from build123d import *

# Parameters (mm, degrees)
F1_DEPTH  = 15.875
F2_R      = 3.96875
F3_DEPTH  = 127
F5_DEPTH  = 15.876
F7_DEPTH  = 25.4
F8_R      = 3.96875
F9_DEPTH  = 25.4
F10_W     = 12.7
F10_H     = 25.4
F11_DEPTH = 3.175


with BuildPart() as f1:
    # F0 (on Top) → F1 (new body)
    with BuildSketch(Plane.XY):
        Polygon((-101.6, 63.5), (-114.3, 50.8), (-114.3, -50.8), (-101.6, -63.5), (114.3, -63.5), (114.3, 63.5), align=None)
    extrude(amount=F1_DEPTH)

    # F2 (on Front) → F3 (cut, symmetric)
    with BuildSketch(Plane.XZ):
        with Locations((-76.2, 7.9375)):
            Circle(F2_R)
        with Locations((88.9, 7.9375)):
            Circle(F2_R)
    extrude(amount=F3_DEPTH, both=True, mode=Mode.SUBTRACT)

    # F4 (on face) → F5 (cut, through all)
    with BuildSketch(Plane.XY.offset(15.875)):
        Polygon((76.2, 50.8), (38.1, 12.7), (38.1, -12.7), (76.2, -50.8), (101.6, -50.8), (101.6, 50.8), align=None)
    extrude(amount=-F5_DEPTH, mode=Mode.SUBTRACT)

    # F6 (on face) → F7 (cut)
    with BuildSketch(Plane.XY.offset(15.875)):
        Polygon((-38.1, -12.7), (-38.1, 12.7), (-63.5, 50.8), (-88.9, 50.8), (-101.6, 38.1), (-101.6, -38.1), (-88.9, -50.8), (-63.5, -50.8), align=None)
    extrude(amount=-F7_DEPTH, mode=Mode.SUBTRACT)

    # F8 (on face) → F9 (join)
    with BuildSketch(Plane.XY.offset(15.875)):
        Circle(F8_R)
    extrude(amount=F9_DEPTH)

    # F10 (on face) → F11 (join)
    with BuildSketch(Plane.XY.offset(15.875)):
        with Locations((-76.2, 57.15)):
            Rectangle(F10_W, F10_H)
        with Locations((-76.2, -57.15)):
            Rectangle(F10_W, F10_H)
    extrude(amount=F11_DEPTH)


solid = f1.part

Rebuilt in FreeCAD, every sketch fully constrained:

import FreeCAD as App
import Part
import Sketcher
Q = App.Units.Quantity

doc = App.newDocument("Part")
params = doc.addObject("Spreadsheet::Sheet", "Params")
for row, (alias, value) in enumerate([
    ("sketch1_height", "4 in"),
    ("sketch1_height2", "5 in"),
    ("sketch1_width", "8.5 in"),
    ("pad1_length", "0.625 in"),
    ("sketch2_diameter", "0.3125 in"),
    ("pocket1_length", "10 in"),
    ("sketch3_width", "1 in"),
    ("sketch3_height", "4 in"),
    ("sketch4_width", "1 in"),
    ("sketch4_height", "3 in"),
    ("pocket3_length", "1 in"),
    ("sketch5_diameter", "0.3125 in"),
    ("pad2_length", "1 in"),
    ("sketch6_height", "1 in"),
    ("sketch6_width", "0.5 in"),
    ("pad3_length", "0.125 in"),
], start=1):
    params.set(f"A{row}", alias)
    params.set(f"B{row}", "=" + value)
    params.setAlias(f"B{row}", alias)

body = doc.addObject("PartDesign::Body", "Body")

# Sketch on XY plane
sketch1 = body.newObject("Sketcher::SketchObject", "Sketch")
sketch1.AttachmentSupport = (doc.getObject("XY_Plane"), [""])
sketch1.MapMode = "FlatFace"
sketch1.addGeometry(Part.LineSegment(App.Vector(-101.6, 63.5, 0), App.Vector(-114.3, 50.8, 0)), False)
sketch1.addGeometry(Part.LineSegment(App.Vector(-114.3, 50.8, 0), App.Vector(-114.3, -50.8, 0)), False)
sketch1.addGeometry(Part.LineSegment(App.Vector(-114.3, -50.8, 0), App.Vector(-101.6, -63.5, 0)), False)
sketch1.addGeometry(Part.LineSegment(App.Vector(-101.6, -63.5, 0), App.Vector(114.3, -63.5, 0)), False)
sketch1.addGeometry(Part.LineSegment(App.Vector(114.3, -63.5, 0), App.Vector(114.3, 63.5, 0)), False)
sketch1.addGeometry(Part.LineSegment(App.Vector(114.3, 63.5, 0), App.Vector(-101.6, 63.5, 0)), False)
sketch1.addConstraint(Sketcher.Constraint("Coincident", 0, 2, 1, 1))
sketch1.addConstraint(Sketcher.Constraint("Coincident", 1, 2, 2, 1))
sketch1.addConstraint(Sketcher.Constraint("Coincident", 2, 2, 3, 1))
sketch1.addConstraint(Sketcher.Constraint("Coincident", 3, 2, 4, 1))
sketch1.addConstraint(Sketcher.Constraint("Coincident", 4, 2, 5, 1))
sketch1.addConstraint(Sketcher.Constraint("Coincident", 5, 2, 0, 1))
sketch1.addConstraint(Sketcher.Constraint("Vertical", 1))
sketch1.addConstraint(Sketcher.Constraint("Horizontal", 3))
sketch1.addConstraint(Sketcher.Constraint("Vertical", 4))
sketch1.addConstraint(Sketcher.Constraint("Horizontal", 5))
sketch1.addConstraint(Sketcher.Constraint("Symmetric", 2, 2, 5, 2, -1))
sketch1.addConstraint(Sketcher.Constraint("Perpendicular", 0, 2))
sketch1.addConstraint(Sketcher.Constraint("Equal", 0, 2))
sketch1.addConstraint(Sketcher.Constraint("DistanceY", 1, 2, 1, 1, Q("4 in")))
sketch1.addConstraint(Sketcher.Constraint("DistanceY", 4, 1, 4, 2, Q("5 in")))
sketch1.addConstraint(Sketcher.Constraint("DistanceX", 3, 1, 3, 2, Q("8.5 in")))
sketch1.addConstraint(Sketcher.Constraint("DistanceX", 2, 2, -1, 1, Q("4 in")))
sketch1.setExpression("Constraints[13]", "Params.sketch1_height")
sketch1.setExpression("Constraints[14]", "Params.sketch1_height2")
sketch1.setExpression("Constraints[15]", "Params.sketch1_width")
pad1 = body.newObject("PartDesign::Pad", "Pad")
pad1.Profile = sketch1
pad1.setExpression("Length", "Params.pad1_length")

# Sketch on XZ plane
sketch2 = body.newObject("Sketcher::SketchObject", "Sketch001")
sketch2.AttachmentSupport = (doc.getObject("XZ_Plane"), [""])
sketch2.MapMode = "FlatFace"
sketch2.addGeometry(Part.Circle(App.Vector(-76.2, 7.9375, 0), App.Vector(0, 0, 1), 3.96875), False)
sketch2.addGeometry(Part.Circle(App.Vector(88.9, 7.9375, 0), App.Vector(0, 0, 1), 3.96875), False)
sketch2.addConstraint(Sketcher.Constraint("Equal", 0, 1))
sketch2.addConstraint(Sketcher.Constraint("Horizontal", 0, 3, 1, 3))
sketch2.addConstraint(Sketcher.Constraint("Diameter", 0, Q("0.3125 in")))
sketch2.addConstraint(Sketcher.Constraint("DistanceX", 0, 3, -1, 1, Q("3 in")))
sketch2.addConstraint(Sketcher.Constraint("DistanceX", -1, 1, 1, 3, Q("3.5 in")))
sketch2.addConstraint(Sketcher.Constraint("DistanceY", -1, 1, 0, 3, Q("0.3125 in")))
sketch2.setExpression("Constraints[2]", "Params.sketch2_diameter")
pocket1 = body.newObject("PartDesign::Pocket", "Pocket")
pocket1.Profile = sketch2
pocket1.setExpression("Length", "Params.pocket1_length")
pocket1.Midplane = True

# Sketch on XY plane
sketch3 = body.newObject("Sketcher::SketchObject", "Sketch002")
sketch3.AttachmentSupport = (doc.getObject("XY_Plane"), [""])
sketch3.MapMode = "FlatFace"
sketch3.AttachmentOffset = App.Placement(App.Vector(0, 0, 0.625 * 25.4), App.Rotation())
sketch3.addGeometry(Part.LineSegment(App.Vector(76.2, 50.8, 0), App.Vector(38.1, 12.7, 0)), False)
sketch3.addGeometry(Part.LineSegment(App.Vector(38.1, 12.7, 0), App.Vector(38.1, -12.7, 0)), False)
sketch3.addGeometry(Part.LineSegment(App.Vector(38.1, -12.7, 0), App.Vector(76.2, -50.8, 0)), False)
sketch3.addGeometry(Part.LineSegment(App.Vector(76.2, -50.8, 0), App.Vector(101.6, -50.8, 0)), False)
sketch3.addGeometry(Part.LineSegment(App.Vector(101.6, -50.8, 0), App.Vector(101.6, 50.8, 0)), False)
sketch3.addGeometry(Part.LineSegment(App.Vector(101.6, 50.8, 0), App.Vector(76.2, 50.8, 0)), False)
sketch3.addConstraint(Sketcher.Constraint("Coincident", 0, 2, 1, 1))
sketch3.addConstraint(Sketcher.Constraint("Coincident", 1, 2, 2, 1))
sketch3.addConstraint(Sketcher.Constraint("Coincident", 2, 2, 3, 1))
sketch3.addConstraint(Sketcher.Constraint("Coincident", 3, 2, 4, 1))
sketch3.addConstraint(Sketcher.Constraint("Coincident", 4, 2, 5, 1))
sketch3.addConstraint(Sketcher.Constraint("Coincident", 5, 2, 0, 1))
sketch3.addConstraint(Sketcher.Constraint("Vertical", 1))
sketch3.addConstraint(Sketcher.Constraint("Horizontal", 3))
sketch3.addConstraint(Sketcher.Constraint("Vertical", 4))
sketch3.addConstraint(Sketcher.Constraint("Horizontal", 5))
sketch3.addConstraint(Sketcher.Constraint("Symmetric", 2, 2, 5, 2, -1))
sketch3.addConstraint(Sketcher.Constraint("Perpendicular", 0, 2))
sketch3.addConstraint(Sketcher.Constraint("Equal", 5, 1))
sketch3.addConstraint(Sketcher.Constraint("Equal", 0, 2))
sketch3.addConstraint(Sketcher.Constraint("DistanceX", 3, 1, 3, 2, Q("1 in")))
sketch3.addConstraint(Sketcher.Constraint("DistanceY", 4, 1, 4, 2, Q("4 in")))
sketch3.addConstraint(Sketcher.Constraint("DistanceX", -1, 1, 2, 2, Q("3 in")))
sketch3.setExpression("Constraints[14]", "Params.sketch3_width")
sketch3.setExpression("Constraints[15]", "Params.sketch3_height")
pocket2 = body.newObject("PartDesign::Pocket", "Pocket001")
pocket2.Profile = sketch3
pocket2.Type = "ThroughAll"

# Sketch on XY plane
sketch4 = body.newObject("Sketcher::SketchObject", "Sketch003")
sketch4.AttachmentSupport = (doc.getObject("XY_Plane"), [""])
sketch4.MapMode = "FlatFace"
sketch4.AttachmentOffset = App.Placement(App.Vector(0, 0, 0.625 * 25.4), App.Rotation())
sketch4.addGeometry(Part.LineSegment(App.Vector(-38.1, -12.7, 0), App.Vector(-38.1, 12.7, 0)), False)
sketch4.addGeometry(Part.LineSegment(App.Vector(-38.1, 12.7, 0), App.Vector(-63.5, 50.8, 0)), False)
sketch4.addGeometry(Part.LineSegment(App.Vector(-63.5, 50.8, 0), App.Vector(-88.9, 50.8, 0)), False)
sketch4.addGeometry(Part.LineSegment(App.Vector(-88.9, 50.8, 0), App.Vector(-101.6, 38.1, 0)), False)
sketch4.addGeometry(Part.LineSegment(App.Vector(-101.6, 38.1, 0), App.Vector(-101.6, -38.1, 0)), False)
sketch4.addGeometry(Part.LineSegment(App.Vector(-101.6, -38.1, 0), App.Vector(-88.9, -50.8, 0)), False)
sketch4.addGeometry(Part.LineSegment(App.Vector(-88.9, -50.8, 0), App.Vector(-63.5, -50.8, 0)), False)
sketch4.addGeometry(Part.LineSegment(App.Vector(-63.5, -50.8, 0), App.Vector(-38.1, -12.7, 0)), False)
sketch4.addConstraint(Sketcher.Constraint("Coincident", 0, 2, 1, 1))
sketch4.addConstraint(Sketcher.Constraint("Coincident", 1, 2, 2, 1))
sketch4.addConstraint(Sketcher.Constraint("Coincident", 2, 2, 3, 1))
sketch4.addConstraint(Sketcher.Constraint("Coincident", 3, 2, 4, 1))
sketch4.addConstraint(Sketcher.Constraint("Coincident", 4, 2, 5, 1))
sketch4.addConstraint(Sketcher.Constraint("Coincident", 5, 2, 6, 1))
sketch4.addConstraint(Sketcher.Constraint("Coincident", 6, 2, 7, 1))
sketch4.addConstraint(Sketcher.Constraint("Coincident", 7, 2, 0, 1))
sketch4.addConstraint(Sketcher.Constraint("Vertical", 0))
sketch4.addConstraint(Sketcher.Constraint("Horizontal", 2))
sketch4.addConstraint(Sketcher.Constraint("Vertical", 4))
sketch4.addConstraint(Sketcher.Constraint("Horizontal", 6))
sketch4.addConstraint(Sketcher.Constraint("Symmetric", 2, 2, 5, 2, -1))
sketch4.addConstraint(Sketcher.Constraint("Perpendicular", 3, 5))
sketch4.addConstraint(Sketcher.Constraint("Vertical", 1, 2, 6, 2))
sketch4.addConstraint(Sketcher.Constraint("Equal", 6, 0))
sketch4.addConstraint(Sketcher.Constraint("Equal", 3, 5))
sketch4.addConstraint(Sketcher.Constraint("Equal", 1, 7))
sketch4.addConstraint(Sketcher.Constraint("DistanceX", 2, 2, 2, 1, Q("1 in")))
sketch4.addConstraint(Sketcher.Constraint("DistanceY", 4, 2, 4, 1, Q("3 in")))
sketch4.addConstraint(Sketcher.Constraint("DistanceY", -1, 1, 1, 2, Q("2 in")))
sketch4.addConstraint(Sketcher.Constraint("DistanceX", 3, 2, -1, 1, Q("4 in")))
sketch4.addConstraint(Sketcher.Constraint("DistanceX", 1, 2, 0, 2, Q("1 in")))
sketch4.setExpression("Constraints[18]", "Params.sketch4_width")
sketch4.setExpression("Constraints[19]", "Params.sketch4_height")
pocket3 = body.newObject("PartDesign::Pocket", "Pocket002")
pocket3.Profile = sketch4
pocket3.setExpression("Length", "Params.pocket3_length")

# Sketch on XY plane
sketch5 = body.newObject("Sketcher::SketchObject", "Sketch004")
sketch5.AttachmentSupport = (doc.getObject("XY_Plane"), [""])
sketch5.MapMode = "FlatFace"
sketch5.AttachmentOffset = App.Placement(App.Vector(0, 0, 0.625 * 25.4), App.Rotation())
sketch5.addGeometry(Part.Circle(App.Vector(0, 0, 0), App.Vector(0, 0, 1), 3.96875), False)
sketch5.addConstraint(Sketcher.Constraint("Coincident", 0, 3, -1, 1))
sketch5.addConstraint(Sketcher.Constraint("Diameter", 0, Q("0.3125 in")))
sketch5.setExpression("Constraints[1]", "Params.sketch5_diameter")
pad2 = body.newObject("PartDesign::Pad", "Pad001")
pad2.Profile = sketch5
pad2.setExpression("Length", "Params.pad2_length")

# Sketch on XY plane
sketch6 = body.newObject("Sketcher::SketchObject", "Sketch005")
sketch6.AttachmentSupport = (doc.getObject("XY_Plane"), [""])
sketch6.MapMode = "FlatFace"
sketch6.AttachmentOffset = App.Placement(App.Vector(0, 0, 0.625 * 25.4), App.Rotation())
sketch6.addGeometry(Part.LineSegment(App.Vector(-82.55, 69.85, 0), App.Vector(-82.55, 44.45, 0)), False)
sketch6.addGeometry(Part.LineSegment(App.Vector(-82.55, 44.45, 0), App.Vector(-69.85, 44.45, 0)), False)
sketch6.addGeometry(Part.LineSegment(App.Vector(-69.85, 44.45, 0), App.Vector(-69.85, 69.85, 0)), False)
sketch6.addGeometry(Part.LineSegment(App.Vector(-69.85, 69.85, 0), App.Vector(-82.55, 69.85, 0)), False)
sketch6.addGeometry(Part.LineSegment(App.Vector(-82.55, -44.45, 0), App.Vector(-82.55, -69.85, 0)), False)
sketch6.addGeometry(Part.LineSegment(App.Vector(-82.55, -69.85, 0), App.Vector(-69.85, -69.85, 0)), False)
sketch6.addGeometry(Part.LineSegment(App.Vector(-69.85, -69.85, 0), App.Vector(-69.85, -44.45, 0)), False)
sketch6.addGeometry(Part.LineSegment(App.Vector(-69.85, -44.45, 0), App.Vector(-82.55, -44.45, 0)), False)
sketch6.addConstraint(Sketcher.Constraint("Coincident", 0, 2, 1, 1))
sketch6.addConstraint(Sketcher.Constraint("Coincident", 1, 2, 2, 1))
sketch6.addConstraint(Sketcher.Constraint("Coincident", 2, 2, 3, 1))
sketch6.addConstraint(Sketcher.Constraint("Coincident", 3, 2, 0, 1))
sketch6.addConstraint(Sketcher.Constraint("Coincident", 4, 2, 5, 1))
sketch6.addConstraint(Sketcher.Constraint("Coincident", 5, 2, 6, 1))
sketch6.addConstraint(Sketcher.Constraint("Coincident", 6, 2, 7, 1))
sketch6.addConstraint(Sketcher.Constraint("Coincident", 7, 2, 4, 1))
sketch6.addConstraint(Sketcher.Constraint("Vertical", 0))
sketch6.addConstraint(Sketcher.Constraint("Horizontal", 1))
sketch6.addConstraint(Sketcher.Constraint("Vertical", 2))
sketch6.addConstraint(Sketcher.Constraint("Horizontal", 3))
sketch6.addConstraint(Sketcher.Constraint("Vertical", 4))
sketch6.addConstraint(Sketcher.Constraint("Horizontal", 5))
sketch6.addConstraint(Sketcher.Constraint("Vertical", 6))
sketch6.addConstraint(Sketcher.Constraint("Horizontal", 7))
sketch6.addConstraint(Sketcher.Constraint("Symmetric", 3, 2, 4, 2, -1))
sketch6.addConstraint(Sketcher.Constraint("Symmetric", 1, 2, 6, 2, -1))
sketch6.addConstraint(Sketcher.Constraint("DistanceY", 0, 2, 0, 1, Q("1 in")))
sketch6.addConstraint(Sketcher.Constraint("DistanceX", 1, 1, 1, 2, Q("0.5 in")))
sketch6.addConstraint(Sketcher.Constraint("DistanceY", 4, 2, 0, 2, Q("4.5 in")))
sketch6.addConstraint(Sketcher.Constraint("DistanceX", 0, 2, -1, 1, Q("3.25 in")))
sketch6.setExpression("Constraints[18]", "Params.sketch6_height")
sketch6.setExpression("Constraints[19]", "Params.sketch6_width")
pad3 = body.newObject("PartDesign::Pad", "Pad002")
pad3.Profile = sketch6
pad3.setExpression("Length", "Params.pad3_length")

doc.recompute()
